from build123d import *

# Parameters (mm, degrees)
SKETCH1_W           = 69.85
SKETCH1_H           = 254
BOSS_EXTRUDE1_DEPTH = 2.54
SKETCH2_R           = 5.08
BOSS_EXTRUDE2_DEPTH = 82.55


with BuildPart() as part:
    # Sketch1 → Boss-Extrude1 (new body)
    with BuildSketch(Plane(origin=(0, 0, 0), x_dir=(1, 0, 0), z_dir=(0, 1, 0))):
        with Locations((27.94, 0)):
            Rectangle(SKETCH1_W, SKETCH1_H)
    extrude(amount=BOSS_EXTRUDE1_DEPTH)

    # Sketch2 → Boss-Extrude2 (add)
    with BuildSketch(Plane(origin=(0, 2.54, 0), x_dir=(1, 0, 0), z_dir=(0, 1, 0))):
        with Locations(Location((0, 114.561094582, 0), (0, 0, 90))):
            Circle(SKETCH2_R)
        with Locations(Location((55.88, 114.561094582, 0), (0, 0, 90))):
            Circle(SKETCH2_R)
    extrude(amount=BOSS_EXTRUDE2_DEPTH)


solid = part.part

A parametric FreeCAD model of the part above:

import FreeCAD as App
import Part
import Sketcher
Q = App.Units.Quantity


def add_polygon(sketch, points):
    """Adds a closed chain of lines whose ends are joined by coincident constraints."""
    first, n = sketch.GeometryCount, len(points)
    for a, b in zip(points, points[1:] + points[:1]):
        sketch.addGeometry(Part.LineSegment(App.Vector(*a, 0), App.Vector(*b, 0)), False)
    for i in range(n):
        sketch.addConstraint(Sketcher.Constraint("Coincident", first + i, 2, first + (i + 1) % n, 1))

doc = App.newDocument("Part")
body = doc.addObject("PartDesign::Body", "Body")

# Sketch on XZ plane
sketch1 = doc.addObject("Sketcher::SketchObject", "Sketch")
body.addObject(sketch1)
sketch1.AttachmentSupport = (doc.XZ_Plane, [""])
sketch1.MapMode = "FlatFace"
add_polygon(sketch1, [(-6.985, -127), (-6.985, 127), (62.865, 127), (62.865, -127)])  # lines 0-3
sketch1.addConstraint([
    Sketcher.Constraint("Vertical", 0),
    Sketcher.Constraint("Horizontal", 1),
    Sketcher.Constraint("Vertical", 2),
    Sketcher.Constraint("Horizontal", 3),
    Sketcher.Constraint("DistanceY", 0, 1, 0, 2, Q("10 in")),
    Sketcher.Constraint("DistanceY", -1, 1, 0, 2, Q("5 in")),
    Sketcher.Constraint("DistanceX", 1, 1, 1, 2, Q("2.75 in")),
    Sketcher.Constraint("DistanceX", 0, 2, -1, 1, Q("0.275 in")),
])
pad1 = doc.addObject("PartDesign::Pad", "Pad")
body.addObject(pad1)
pad1.Profile = sketch1
pad1.Length = Q("0.1 in")
pad1.Reversed = True

# Sketch on XZ plane
sketch2 = doc.addObject("Sketcher::SketchObject", "Sketch001")
body.addObject(sketch2)
sketch2.AttachmentSupport = (doc.XZ_Plane, [""])
sketch2.MapMode = "FlatFace"
sketch2.AttachmentOffset = App.Placement(App.Vector(0, 0, -0.1 * 25.4), App.Rotation())
sketch2.addGeometry([
    Part.Circle(App.Vector(0, -114.561095, 0), App.Vector(0, 0, 1), 5.08),
    Part.Circle(App.Vector(55.88, -114.561095, 0), App.Vector(0, 0, 1), 5.08),
], False)
sketch2.addConstraint([
    Sketcher.Constraint("Equal", 0, 1),
    Sketcher.Constraint("PointOnObject", 0, 3, -2),
    Sketcher.Constraint("Horizontal", 0, 3, 1, 3),
    Sketcher.Constraint("Diameter", 0, Q("0.4 in")),
    Sketcher.Constraint("DistanceX", -1, 1, 1, 3, Q("2.2 in")),
    Sketcher.Constraint("DistanceY", 0, 3, -1, 1, 114.561095),
])
pad2 = doc.addObject("PartDesign::Pad", "Pad001")
body.addObject(pad2)
pad2.Profile = sketch2
pad2.Length = Q("3.25 in")
pad2.Reversed = True

doc.recompute()
